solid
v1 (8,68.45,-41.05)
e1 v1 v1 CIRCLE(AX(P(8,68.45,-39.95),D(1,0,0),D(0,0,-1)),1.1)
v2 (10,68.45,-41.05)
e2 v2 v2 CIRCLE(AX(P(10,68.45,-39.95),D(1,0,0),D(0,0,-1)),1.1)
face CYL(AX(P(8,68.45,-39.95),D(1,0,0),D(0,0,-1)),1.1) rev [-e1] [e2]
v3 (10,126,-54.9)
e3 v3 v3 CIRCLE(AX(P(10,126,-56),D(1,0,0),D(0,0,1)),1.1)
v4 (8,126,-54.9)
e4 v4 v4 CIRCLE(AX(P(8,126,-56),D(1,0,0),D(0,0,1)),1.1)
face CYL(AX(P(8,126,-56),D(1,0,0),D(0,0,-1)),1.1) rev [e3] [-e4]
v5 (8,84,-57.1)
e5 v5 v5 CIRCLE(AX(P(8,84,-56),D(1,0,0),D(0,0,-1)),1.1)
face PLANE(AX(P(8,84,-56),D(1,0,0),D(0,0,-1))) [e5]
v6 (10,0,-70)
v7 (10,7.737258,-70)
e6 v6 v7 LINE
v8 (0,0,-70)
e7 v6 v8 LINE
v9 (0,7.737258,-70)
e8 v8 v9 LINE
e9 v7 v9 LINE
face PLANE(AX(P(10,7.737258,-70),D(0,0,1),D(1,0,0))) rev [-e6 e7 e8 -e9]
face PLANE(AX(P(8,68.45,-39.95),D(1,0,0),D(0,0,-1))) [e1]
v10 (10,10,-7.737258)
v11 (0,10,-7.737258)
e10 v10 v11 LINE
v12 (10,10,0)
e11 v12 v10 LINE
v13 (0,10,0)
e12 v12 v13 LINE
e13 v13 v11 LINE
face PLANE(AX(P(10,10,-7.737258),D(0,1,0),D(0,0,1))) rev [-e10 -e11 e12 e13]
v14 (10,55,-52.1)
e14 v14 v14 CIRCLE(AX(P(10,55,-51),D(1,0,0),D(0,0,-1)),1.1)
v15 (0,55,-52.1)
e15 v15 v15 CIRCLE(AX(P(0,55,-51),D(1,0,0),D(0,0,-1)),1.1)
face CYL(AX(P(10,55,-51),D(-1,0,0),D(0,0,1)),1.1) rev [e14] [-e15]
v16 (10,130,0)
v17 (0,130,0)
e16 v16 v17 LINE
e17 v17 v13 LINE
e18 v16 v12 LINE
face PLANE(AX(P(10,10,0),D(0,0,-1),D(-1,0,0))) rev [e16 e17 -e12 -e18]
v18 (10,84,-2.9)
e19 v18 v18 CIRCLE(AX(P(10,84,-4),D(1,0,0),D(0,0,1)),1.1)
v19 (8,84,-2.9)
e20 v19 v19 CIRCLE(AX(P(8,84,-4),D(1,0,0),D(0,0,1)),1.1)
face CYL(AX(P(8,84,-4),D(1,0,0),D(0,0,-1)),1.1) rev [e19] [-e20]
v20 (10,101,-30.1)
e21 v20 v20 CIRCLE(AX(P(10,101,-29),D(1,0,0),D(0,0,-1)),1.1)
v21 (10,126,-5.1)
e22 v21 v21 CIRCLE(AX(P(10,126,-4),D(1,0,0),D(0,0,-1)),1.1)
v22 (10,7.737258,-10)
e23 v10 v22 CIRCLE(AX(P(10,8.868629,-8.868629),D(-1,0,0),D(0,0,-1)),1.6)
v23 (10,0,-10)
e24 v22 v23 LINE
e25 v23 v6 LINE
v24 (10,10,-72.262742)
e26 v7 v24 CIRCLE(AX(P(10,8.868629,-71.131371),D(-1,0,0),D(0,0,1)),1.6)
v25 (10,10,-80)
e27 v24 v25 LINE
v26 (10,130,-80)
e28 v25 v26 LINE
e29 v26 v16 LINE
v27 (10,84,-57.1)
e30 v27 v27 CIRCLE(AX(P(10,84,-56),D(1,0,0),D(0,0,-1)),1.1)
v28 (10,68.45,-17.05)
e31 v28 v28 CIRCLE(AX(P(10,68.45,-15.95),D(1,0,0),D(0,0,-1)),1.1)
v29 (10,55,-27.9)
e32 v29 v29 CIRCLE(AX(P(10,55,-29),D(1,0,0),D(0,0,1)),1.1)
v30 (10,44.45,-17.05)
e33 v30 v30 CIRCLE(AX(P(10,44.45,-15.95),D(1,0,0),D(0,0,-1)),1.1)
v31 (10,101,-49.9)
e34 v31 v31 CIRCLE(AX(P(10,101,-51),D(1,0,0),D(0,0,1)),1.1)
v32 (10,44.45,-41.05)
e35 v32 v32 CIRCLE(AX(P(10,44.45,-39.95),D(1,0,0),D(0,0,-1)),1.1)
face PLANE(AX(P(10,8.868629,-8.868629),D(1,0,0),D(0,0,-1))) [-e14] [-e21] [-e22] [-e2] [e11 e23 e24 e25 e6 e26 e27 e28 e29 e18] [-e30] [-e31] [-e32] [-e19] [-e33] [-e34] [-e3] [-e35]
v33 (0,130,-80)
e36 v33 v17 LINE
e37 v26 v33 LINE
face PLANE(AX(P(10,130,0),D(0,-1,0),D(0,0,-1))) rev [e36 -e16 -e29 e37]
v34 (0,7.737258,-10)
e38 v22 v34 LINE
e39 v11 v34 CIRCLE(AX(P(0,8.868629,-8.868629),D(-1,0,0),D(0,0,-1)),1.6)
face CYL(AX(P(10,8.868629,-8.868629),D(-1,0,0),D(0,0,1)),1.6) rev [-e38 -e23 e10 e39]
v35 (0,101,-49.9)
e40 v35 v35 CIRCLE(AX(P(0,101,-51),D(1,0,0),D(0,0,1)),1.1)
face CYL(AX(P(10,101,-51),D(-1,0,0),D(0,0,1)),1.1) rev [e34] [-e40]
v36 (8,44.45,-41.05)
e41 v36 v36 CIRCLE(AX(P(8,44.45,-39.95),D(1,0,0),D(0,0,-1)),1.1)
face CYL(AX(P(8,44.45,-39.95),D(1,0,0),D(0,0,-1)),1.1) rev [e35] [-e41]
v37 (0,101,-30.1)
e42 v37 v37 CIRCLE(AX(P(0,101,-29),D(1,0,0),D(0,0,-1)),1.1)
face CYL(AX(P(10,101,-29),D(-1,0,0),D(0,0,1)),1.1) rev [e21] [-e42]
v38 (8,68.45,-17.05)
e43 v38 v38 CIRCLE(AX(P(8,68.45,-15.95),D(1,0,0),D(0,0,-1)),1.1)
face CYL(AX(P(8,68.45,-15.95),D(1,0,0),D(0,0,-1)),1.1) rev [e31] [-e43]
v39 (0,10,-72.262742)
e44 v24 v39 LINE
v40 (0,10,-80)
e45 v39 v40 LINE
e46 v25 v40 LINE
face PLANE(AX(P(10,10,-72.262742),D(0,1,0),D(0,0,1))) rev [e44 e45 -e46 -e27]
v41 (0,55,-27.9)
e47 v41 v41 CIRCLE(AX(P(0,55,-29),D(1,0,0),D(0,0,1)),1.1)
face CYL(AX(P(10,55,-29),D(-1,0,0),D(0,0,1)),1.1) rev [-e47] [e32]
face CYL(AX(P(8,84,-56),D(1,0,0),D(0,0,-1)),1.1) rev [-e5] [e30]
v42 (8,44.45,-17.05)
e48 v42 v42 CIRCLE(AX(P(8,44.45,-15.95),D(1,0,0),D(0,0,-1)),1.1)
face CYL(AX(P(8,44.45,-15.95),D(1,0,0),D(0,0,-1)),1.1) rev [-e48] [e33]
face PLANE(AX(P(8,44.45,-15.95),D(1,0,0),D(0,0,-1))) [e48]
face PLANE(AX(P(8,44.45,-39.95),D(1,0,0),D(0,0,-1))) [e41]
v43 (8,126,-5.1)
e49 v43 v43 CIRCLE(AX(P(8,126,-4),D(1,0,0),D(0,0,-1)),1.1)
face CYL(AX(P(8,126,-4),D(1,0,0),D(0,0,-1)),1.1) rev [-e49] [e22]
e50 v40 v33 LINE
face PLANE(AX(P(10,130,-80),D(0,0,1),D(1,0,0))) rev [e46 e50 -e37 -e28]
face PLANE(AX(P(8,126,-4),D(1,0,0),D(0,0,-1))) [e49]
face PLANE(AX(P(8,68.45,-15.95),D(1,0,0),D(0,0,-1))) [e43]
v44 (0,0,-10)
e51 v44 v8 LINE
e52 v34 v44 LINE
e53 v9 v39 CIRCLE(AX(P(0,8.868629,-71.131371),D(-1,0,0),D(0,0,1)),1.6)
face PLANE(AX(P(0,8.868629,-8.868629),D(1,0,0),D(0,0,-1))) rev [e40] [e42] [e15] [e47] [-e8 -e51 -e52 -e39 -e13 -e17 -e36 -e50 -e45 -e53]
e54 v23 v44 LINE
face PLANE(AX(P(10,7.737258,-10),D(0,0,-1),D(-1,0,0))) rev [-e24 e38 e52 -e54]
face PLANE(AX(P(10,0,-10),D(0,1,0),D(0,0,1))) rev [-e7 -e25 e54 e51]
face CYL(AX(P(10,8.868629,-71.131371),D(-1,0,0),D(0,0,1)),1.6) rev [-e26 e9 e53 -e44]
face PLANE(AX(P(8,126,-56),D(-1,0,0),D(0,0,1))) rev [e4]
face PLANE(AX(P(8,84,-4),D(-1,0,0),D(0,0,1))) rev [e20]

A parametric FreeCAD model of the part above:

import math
import FreeCAD as App
import Part
import Sketcher

V = App.Vector
Q = App.Units.Quantity

doc = App.newDocument("Part")
params = doc.addObject("Spreadsheet::Sheet", "Params")
for row, (alias, value) in enumerate([
    ("sketch1_diameter", "2.2 mm"),
    ("sketch1_radius", "1.6 mm"),
    ("sketch1_width", "120 mm"),
    ("sketch1_height", "60 mm"),
    ("sketch1_height2", "80 mm"),
    ("pad1_length", "10 mm"),
    ("sketch2_diameter", "2.2 mm"),
    ("pocket1_length", "2 mm"),
], start=1):
    params.set(f"A{row}", alias)
    params.set(f"B{row}", "=" + value)
    params.setAlias(f"B{row}", alias)

body = doc.addObject("PartDesign::Body", "Body")

# Sketch on YZ plane
sketch1 = body.newObject("Sketcher::SketchObject", "Sketch")
sketch1.AttachmentSupport = (doc.getObject("YZ_Plane"), [""])
sketch1.MapMode = "FlatFace"
sketch1.addGeometry([
    Part.LineSegment(V(7.737258, -10, 0), V(0, -10, 0)),  # 0
    Part.LineSegment(V(0, -10, 0), V(0, -70, 0)),  # 1
    Part.LineSegment(V(0, -70, 0), V(7.737258, -70, 0)),  # 2
    Part.ArcOfCircle(Part.Circle(V(8.868629, -71.131371, 0), V(0, 0, 1), 1.6), math.radians(-45), math.radians(135)),  # 3
    Part.LineSegment(V(10, -72.262742, 0), V(10, -80, 0)),  # 4
    Part.LineSegment(V(10, -80, 0), V(130, -80, 0)),  # 5
    Part.LineSegment(V(130, -80, 0), V(130, 0, 0)),  # 6
    Part.LineSegment(V(130, 0, 0), V(10, 0, 0)),  # 7
    Part.LineSegment(V(10, 0, 0), V(10, -7.737258, 0)),  # 8
    Part.ArcOfCircle(Part.Circle(V(8.868629, -8.868629, 0), V(0, 0, 1), 1.6), math.radians(-135), math.radians(45)),  # 9
    Part.Circle(V(55, -29, 0), V(0, 0, 1), 1.1),  # 10
    Part.Circle(V(55, -51, 0), V(0, 0, 1), 1.1),  # 11
    Part.Circle(V(101, -29, 0), V(0, 0, 1), 1.1),  # 12
    Part.Circle(V(101, -51, 0), V(0, 0, 1), 1.1),  # 13
], False)
sketch1.addConstraint([
    Sketcher.Constraint("Coincident", 0, 2, 1, 1),
    Sketcher.Constraint("Coincident", 1, 2, 2, 1),
    Sketcher.Constraint("Coincident", 2, 2, 3, 2),
    Sketcher.Constraint("Coincident", 3, 1, 4, 1),
    Sketcher.Constraint("Coincident", 4, 2, 5, 1),
    Sketcher.Constraint("Coincident", 5, 2, 6, 1),
    Sketcher.Constraint("Coincident", 6, 2, 7, 1),
    Sketcher.Constraint("Coincident", 7, 2, 8, 1),
    Sketcher.Constraint("Coincident", 8, 2, 9, 2),
    Sketcher.Constraint("Coincident", 9, 1, 0, 1),
    Sketcher.Constraint("Horizontal", 0),
    Sketcher.Constraint("Vertical", 1),
    Sketcher.Constraint("Horizontal", 2),
    Sketcher.Constraint("Vertical", 4),
    Sketcher.Constraint("Horizontal", 5),
    Sketcher.Constraint("Vertical", 6),
    Sketcher.Constraint("Horizontal", 7),
    Sketcher.Constraint("Vertical", 8),
    Sketcher.Constraint("Equal", 3, 9),
    Sketcher.Constraint("Equal", 10, 11),
    Sketcher.Constraint("Equal", 11, 12),
    Sketcher.Constraint("Equal", 12, 13),
    Sketcher.Constraint("PointOnObject", 0, 2, -2),
    Sketcher.Constraint("PointOnObject", 6, 2, -1),
    Sketcher.Constraint("Horizontal", 10, 3, 12, 3),
    Sketcher.Constraint("Horizontal", 11, 3, 13, 3),
    Sketcher.Constraint("Vertical", 3, 3, 9, 3),
    Sketcher.Constraint("Vertical", 10, 3, 11, 3),
    Sketcher.Constraint("Vertical", 12, 3, 13, 3),
    Sketcher.Constraint("Vertical", 4, 2, 7, 2),
    Sketcher.Constraint("Vertical", 2, 2, 9, 1),
    Sketcher.Constraint("Equal", 2, 4),
    Sketcher.Constraint("Equal", 4, 8),
    Sketcher.Constraint("Diameter", 10, Q("2.2 mm")),
    Sketcher.Constraint("Radius", 3, Q("1.6 mm")),
    Sketcher.Constraint("DistanceX", 5, 1, 5, 2, Q("120 mm")),
    Sketcher.Constraint("DistanceY", 1, 2, 1, 1, Q("60 mm")),
    Sketcher.Constraint("DistanceY", 6, 1, 6, 2, Q("80 mm")),
    Sketcher.Constraint("DistanceX", -1, 1, 10, 3, Q("55 mm")),
    Sketcher.Constraint("DistanceY", 10, 3, -1, 1, Q("29 mm")),
    Sketcher.Constraint("DistanceY", 11, 3, -1, 1, Q("51 mm")),
    Sketcher.Constraint("DistanceX", -1, 1, 12, 3, Q("101 mm")),
    Sketcher.Constraint("DistanceX", -1, 1, 3, 1, Q("10 mm")),
    Sketcher.Constraint("DistanceX", -1, 1, 3, 3, Q("8.868629 mm")),
])
sketch1.setExpression("Constraints[33]", "Params.sketch1_diameter")
sketch1.setExpression("Constraints[34]", "Params.sketch1_radius")
sketch1.setExpression("Constraints[35]", "Params.sketch1_width")
sketch1.setExpression("Constraints[36]", "Params.sketch1_height")
sketch1.setExpression("Constraints[37]", "Params.sketch1_height2")
pad1 = body.newObject("PartDesign::Pad", "Pad")
pad1.Profile = sketch1
pad1.setExpression("Length", "Params.pad1_length")

# Sketch on YZ plane
sketch2 = body.newObject("Sketcher::SketchObject", "Sketch001")
sketch2.AttachmentSupport = (doc.getObject("YZ_Plane"), [""])
sketch2.MapMode = "FlatFace"
sketch2.AttachmentOffset = App.Placement(V(0, 0, 10), App.Rotation())
sketch2.addGeometry([
    Part.Circle(V(126, -4, 0), V(0, 0, 1), 1.1),  # 0
    Part.Circle(V(126, -56, 0), V(0, 0, 1), 1.1),  # 1
    Part.Circle(V(84, -4, 0), V(0, 0, 1), 1.1),  # 2
    Part.Circle(V(84, -56, 0), V(0, 0, 1), 1.1),  # 3
    Part.Circle(V(68.45, -15.95, 0), V(0, 0, 1), 1.1),  # 4
    Part.Circle(V(44.45, -15.95, 0), V(0, 0, 1), 1.1),  # 5
    Part.Circle(V(44.45, -39.95, 0), V(0, 0, 1), 1.1),  # 6
    Part.Circle(V(68.45, -39.95, 0), V(0, 0, 1), 1.1),  # 7
], False)
sketch2.addConstraint([
    Sketcher.Constraint("Equal", 0, 1),
    Sketcher.Constraint("Equal", 1, 2),
    Sketcher.Constraint("Equal", 2, 3),
    Sketcher.Constraint("Equal", 3, 4),
    Sketcher.Constraint("Equal", 4, 5),
    Sketcher.Constraint("Equal", 5, 6),
    Sketcher.Constraint("Equal", 6, 7),
    Sketcher.Constraint("Horizontal", 0, 3, 2, 3),
    Sketcher.Constraint("Horizontal", 1, 3, 3, 3),
    Sketcher.Constraint("Horizontal", 4, 3, 5, 3),
    Sketcher.Constraint("Horizontal", 6, 3, 7, 3),
    Sketcher.Constraint("Vertical", 0, 3, 1, 3),
    Sketcher.Constraint("Vertical", 2, 3, 3, 3),
    Sketcher.Constraint("Vertical", 5, 3, 6, 3),
    Sketcher.Constraint("Vertical", 4, 3, 7, 3),
    Sketcher.Constraint("Diameter", 0, Q("2.2 mm")),
    Sketcher.Constraint("DistanceX", -1, 1, 0, 3, Q("126 mm")),
    Sketcher.Constraint("DistanceY", 0, 3, -1, 1, Q("4 mm")),
    Sketcher.Constraint("DistanceY", 1, 3, -1, 1, Q("56 mm")),
    Sketcher.Constraint("DistanceX", -1, 1, 2, 3, Q("84 mm")),
    Sketcher.Constraint("DistanceX", 5, 3, 4, 3, Q("24 mm")),
    Sketcher.Constraint("DistanceY", 6, 3, 5, 3, Q("24 mm")),
    Sketcher.Constraint("DistanceX", -1, 1, 4, 3, Q("68.45 mm")),
    Sketcher.Constraint("DistanceY", 4, 3, -1, 1, Q("15.95 mm")),
])
sketch2.setExpression("Constraints[15]", "Params.sketch2_diameter")
pocket1 = body.newObject("PartDesign::Pocket", "Pocket")
pocket1.Profile = sketch2
pocket1.setExpression("Length", "Params.pocket1_length")

doc.recompute()
